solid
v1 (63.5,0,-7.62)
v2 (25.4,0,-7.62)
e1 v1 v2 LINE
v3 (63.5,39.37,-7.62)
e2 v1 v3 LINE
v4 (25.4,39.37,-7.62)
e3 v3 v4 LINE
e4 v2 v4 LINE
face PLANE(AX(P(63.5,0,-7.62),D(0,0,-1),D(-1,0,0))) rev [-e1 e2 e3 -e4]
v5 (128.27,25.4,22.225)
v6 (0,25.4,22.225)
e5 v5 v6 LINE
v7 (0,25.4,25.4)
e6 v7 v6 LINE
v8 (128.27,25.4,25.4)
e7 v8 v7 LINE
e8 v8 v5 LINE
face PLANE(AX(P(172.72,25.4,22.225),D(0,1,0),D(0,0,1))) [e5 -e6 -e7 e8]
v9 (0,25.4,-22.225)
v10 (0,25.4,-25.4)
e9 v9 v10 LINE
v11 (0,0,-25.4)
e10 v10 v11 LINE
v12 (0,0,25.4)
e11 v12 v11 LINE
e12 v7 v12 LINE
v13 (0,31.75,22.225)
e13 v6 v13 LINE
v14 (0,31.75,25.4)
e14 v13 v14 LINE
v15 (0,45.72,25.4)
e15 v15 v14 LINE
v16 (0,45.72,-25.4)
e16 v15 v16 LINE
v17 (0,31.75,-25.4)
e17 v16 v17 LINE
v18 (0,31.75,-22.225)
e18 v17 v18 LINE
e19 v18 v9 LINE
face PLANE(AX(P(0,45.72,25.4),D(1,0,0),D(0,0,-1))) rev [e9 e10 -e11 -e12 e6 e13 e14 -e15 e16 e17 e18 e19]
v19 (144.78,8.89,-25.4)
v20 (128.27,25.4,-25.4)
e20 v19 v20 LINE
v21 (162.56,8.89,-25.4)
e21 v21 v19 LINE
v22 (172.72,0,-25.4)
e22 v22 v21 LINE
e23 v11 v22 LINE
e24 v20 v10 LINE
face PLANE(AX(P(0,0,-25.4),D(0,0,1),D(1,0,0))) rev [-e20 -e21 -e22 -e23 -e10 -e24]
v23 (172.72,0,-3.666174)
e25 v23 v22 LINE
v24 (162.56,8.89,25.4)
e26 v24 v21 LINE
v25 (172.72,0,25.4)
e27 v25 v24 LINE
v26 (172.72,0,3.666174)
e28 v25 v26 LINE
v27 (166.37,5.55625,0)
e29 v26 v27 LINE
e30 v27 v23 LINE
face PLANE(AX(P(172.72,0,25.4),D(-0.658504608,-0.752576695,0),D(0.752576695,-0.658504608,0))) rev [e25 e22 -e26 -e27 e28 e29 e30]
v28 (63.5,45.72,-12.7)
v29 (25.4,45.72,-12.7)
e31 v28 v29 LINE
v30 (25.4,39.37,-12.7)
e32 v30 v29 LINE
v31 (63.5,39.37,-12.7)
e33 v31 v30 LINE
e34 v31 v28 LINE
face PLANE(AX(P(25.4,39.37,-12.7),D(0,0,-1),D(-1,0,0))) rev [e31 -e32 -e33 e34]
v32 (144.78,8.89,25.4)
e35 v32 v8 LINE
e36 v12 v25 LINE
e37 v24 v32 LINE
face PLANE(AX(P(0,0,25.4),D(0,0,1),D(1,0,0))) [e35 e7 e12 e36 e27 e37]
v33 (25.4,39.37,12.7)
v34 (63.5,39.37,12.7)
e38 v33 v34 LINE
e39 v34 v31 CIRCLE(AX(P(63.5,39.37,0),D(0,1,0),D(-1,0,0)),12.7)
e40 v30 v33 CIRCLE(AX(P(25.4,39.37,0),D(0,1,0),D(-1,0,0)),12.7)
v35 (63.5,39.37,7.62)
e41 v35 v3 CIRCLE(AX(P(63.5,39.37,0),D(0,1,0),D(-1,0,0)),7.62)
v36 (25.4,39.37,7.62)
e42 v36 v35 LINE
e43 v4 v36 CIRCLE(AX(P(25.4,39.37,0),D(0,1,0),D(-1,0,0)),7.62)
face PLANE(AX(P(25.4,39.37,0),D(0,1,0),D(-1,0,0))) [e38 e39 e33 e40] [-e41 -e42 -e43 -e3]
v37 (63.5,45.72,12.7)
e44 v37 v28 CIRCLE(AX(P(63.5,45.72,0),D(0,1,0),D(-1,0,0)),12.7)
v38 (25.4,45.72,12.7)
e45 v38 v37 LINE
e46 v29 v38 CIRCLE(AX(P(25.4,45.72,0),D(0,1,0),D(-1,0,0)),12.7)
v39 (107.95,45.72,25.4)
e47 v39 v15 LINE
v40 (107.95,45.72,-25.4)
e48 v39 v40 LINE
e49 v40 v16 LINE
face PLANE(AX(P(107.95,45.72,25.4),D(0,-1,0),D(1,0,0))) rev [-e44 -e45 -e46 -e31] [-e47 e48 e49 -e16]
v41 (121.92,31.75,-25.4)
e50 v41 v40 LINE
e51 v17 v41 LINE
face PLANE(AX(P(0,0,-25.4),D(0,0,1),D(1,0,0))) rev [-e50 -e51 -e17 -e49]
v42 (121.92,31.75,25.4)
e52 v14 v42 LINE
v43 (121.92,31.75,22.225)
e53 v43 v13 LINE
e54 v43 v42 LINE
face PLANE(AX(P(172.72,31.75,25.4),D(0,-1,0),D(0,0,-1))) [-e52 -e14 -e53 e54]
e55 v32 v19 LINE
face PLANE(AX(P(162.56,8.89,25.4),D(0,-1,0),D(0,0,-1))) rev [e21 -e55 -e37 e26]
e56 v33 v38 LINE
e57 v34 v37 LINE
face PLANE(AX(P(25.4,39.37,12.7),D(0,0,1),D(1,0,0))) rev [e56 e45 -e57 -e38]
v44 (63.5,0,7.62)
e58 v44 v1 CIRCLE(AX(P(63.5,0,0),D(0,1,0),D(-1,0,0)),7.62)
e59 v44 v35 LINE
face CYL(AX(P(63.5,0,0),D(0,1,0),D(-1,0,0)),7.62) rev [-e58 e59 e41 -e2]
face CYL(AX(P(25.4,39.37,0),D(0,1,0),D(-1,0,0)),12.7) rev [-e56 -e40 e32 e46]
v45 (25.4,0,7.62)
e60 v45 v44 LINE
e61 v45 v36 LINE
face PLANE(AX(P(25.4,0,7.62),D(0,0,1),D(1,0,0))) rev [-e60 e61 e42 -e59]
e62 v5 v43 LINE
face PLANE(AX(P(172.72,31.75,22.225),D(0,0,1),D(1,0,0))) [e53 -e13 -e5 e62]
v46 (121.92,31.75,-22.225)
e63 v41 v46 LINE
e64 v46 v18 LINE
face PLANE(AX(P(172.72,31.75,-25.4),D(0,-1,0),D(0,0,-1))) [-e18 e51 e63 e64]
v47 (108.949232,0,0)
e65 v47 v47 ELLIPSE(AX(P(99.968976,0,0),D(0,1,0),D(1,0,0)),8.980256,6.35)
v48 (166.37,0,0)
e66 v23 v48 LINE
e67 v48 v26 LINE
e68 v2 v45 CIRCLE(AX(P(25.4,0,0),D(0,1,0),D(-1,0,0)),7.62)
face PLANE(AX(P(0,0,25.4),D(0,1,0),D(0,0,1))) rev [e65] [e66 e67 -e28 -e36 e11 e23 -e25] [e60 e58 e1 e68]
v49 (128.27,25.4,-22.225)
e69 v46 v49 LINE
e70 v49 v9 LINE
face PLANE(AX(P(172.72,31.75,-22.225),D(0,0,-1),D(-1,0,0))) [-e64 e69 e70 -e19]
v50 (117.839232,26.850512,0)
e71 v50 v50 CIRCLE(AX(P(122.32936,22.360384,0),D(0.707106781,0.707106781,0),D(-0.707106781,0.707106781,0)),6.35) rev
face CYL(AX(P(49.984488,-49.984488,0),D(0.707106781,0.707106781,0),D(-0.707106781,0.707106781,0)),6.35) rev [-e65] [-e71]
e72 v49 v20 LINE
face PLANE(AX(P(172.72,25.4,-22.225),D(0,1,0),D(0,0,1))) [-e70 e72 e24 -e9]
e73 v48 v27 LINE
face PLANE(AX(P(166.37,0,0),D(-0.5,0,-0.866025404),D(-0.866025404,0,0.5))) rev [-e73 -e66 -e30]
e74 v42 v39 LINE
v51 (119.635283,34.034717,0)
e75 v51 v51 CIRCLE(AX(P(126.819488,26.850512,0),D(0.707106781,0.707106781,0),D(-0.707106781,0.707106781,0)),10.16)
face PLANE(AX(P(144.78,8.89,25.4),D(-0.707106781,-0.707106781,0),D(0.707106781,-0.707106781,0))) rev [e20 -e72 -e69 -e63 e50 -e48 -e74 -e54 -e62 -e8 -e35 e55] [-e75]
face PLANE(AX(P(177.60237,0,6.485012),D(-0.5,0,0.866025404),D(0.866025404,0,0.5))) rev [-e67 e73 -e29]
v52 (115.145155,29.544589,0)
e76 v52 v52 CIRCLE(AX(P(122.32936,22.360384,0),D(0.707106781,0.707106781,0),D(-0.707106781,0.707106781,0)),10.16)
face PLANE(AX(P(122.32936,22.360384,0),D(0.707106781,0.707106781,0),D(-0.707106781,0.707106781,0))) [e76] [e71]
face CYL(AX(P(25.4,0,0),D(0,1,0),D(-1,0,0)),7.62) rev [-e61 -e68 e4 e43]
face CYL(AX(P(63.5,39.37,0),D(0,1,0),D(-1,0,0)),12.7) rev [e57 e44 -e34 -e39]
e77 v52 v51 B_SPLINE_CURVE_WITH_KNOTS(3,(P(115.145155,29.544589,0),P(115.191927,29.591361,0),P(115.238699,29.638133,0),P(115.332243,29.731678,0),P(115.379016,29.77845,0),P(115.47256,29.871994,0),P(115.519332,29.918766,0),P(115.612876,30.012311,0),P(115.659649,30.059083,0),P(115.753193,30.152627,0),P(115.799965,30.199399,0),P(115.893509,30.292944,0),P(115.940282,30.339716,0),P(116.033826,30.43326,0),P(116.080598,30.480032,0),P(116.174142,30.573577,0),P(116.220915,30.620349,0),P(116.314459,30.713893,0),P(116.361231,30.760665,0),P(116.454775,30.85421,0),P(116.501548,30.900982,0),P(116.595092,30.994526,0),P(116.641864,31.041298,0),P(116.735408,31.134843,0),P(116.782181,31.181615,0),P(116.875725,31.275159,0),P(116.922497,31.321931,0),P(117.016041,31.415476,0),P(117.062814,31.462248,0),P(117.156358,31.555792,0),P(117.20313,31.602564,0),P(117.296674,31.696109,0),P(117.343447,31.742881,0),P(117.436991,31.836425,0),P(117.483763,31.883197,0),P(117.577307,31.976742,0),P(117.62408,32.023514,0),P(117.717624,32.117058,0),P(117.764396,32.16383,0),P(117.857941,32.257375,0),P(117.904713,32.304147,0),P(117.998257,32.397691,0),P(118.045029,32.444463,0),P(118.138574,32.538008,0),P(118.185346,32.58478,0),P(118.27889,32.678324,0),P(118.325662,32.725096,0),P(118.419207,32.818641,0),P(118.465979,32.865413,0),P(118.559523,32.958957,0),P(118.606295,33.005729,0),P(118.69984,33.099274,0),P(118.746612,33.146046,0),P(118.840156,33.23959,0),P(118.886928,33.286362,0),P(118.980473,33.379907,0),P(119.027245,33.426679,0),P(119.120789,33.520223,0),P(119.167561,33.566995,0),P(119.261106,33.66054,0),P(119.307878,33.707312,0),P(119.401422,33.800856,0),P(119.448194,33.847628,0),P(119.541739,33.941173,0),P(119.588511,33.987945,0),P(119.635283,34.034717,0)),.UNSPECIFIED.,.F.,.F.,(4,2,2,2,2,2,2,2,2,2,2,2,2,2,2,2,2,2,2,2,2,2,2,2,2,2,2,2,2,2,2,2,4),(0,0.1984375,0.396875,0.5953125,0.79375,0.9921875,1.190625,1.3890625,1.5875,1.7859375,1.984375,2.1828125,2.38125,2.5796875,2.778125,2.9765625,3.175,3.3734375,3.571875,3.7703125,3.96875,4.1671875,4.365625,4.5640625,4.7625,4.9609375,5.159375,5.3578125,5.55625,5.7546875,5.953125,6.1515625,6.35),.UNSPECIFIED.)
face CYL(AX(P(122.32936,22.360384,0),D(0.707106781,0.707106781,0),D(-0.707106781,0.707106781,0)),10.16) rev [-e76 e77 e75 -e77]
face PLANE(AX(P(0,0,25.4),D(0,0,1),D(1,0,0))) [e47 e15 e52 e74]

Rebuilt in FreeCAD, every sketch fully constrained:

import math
import FreeCAD as App
import Part
import Sketcher
from FreeCAD import Vector
Q = App.Units.Quantity

doc = App.newDocument("Part")
params = doc.addObject("Spreadsheet::Sheet", "Params")
for row, (alias, value) in enumerate([
    ("sketch1_width", "6.8 in"),
    ("sketch1_width2", "0.7 in"),
    ("sketch1_height", "1.8 in"),
    ("sketch1_width3", "4.25 in"),
    ("pad1_length", "2 in"),
    ("sketch2_diameter", "0.5 in"),
    ("sketch3_diameter", "0.8 in"),
    ("pocket2_length", "0.25 in"),
    ("sketch5_width", "0.25 in"),
    ("sketch5_height", "0.125 in"),
    ("sketch6_radius", "0.5 in"),
    ("sketch6_width", "1.5 in"),
    ("pocket5_length", "0.25 in"),
    ("sketch7_radius", "0.3 in"),
    ("sketch7_width", "1.5 in"),
], start=1):
    params.set(f"A{row}", alias)
    params.set(f"B{row}", "=" + value)
    params.setAlias(f"B{row}", alias)

body = doc.addObject("PartDesign::Body", "Body")

# Sketch on XY plane
sketch1 = doc.addObject("Sketcher::SketchObject", "Sketch")
body.addObject(sketch1)
sketch1.AttachmentSupport = (doc.XY_Plane, [""])
sketch1.MapMode = "FlatFace"
sketch1.addGeometry([
    Part.LineSegment(Vector(0, 0, 0), Vector(173, 0, 0)),  # 0
    Part.LineSegment(Vector(173, 0, 0), Vector(163, 9, 0)),  # 1
    Part.LineSegment(Vector(163, 9, 0), Vector(145, 9, 0)),  # 2
    Part.LineSegment(Vector(145, 9, 0), Vector(108, 46, 0)),  # 3
    Part.LineSegment(Vector(108, 46, 0), Vector(0, 46, 0)),  # 4
    Part.LineSegment(Vector(0, 46, 0), Vector(0, 0, 0)),  # 5
], False)
sketch1.addConstraint([
    Sketcher.Constraint("Coincident", 0, 2, 1, 1),
    Sketcher.Constraint("Coincident", 1, 2, 2, 1),
    Sketcher.Constraint("Coincident", 2, 2, 3, 1),
    Sketcher.Constraint("Coincident", 3, 2, 4, 1),
    Sketcher.Constraint("Coincident", 4, 2, 5, 1),
    Sketcher.Constraint("Coincident", 5, 2, 0, 1),
    Sketcher.Constraint("Horizontal", 0),
    Sketcher.Constraint("Horizontal", 2),
    Sketcher.Constraint("Horizontal", 4),
    Sketcher.Constraint("Vertical", 5),
    Sketcher.Constraint("Coincident", 5, 2, -1, 1),
    Sketcher.Constraint("DistanceX", 0, 1, 0, 2, Q("6.8 in")),
    Sketcher.Constraint("DistanceX", 2, 2, 2, 1, Q("0.7 in")),
    Sketcher.Constraint("DistanceY", 5, 2, 5, 1, Q("1.8 in")),
    Sketcher.Constraint("Angle", 3, Q("135 deg")),
    Sketcher.Constraint("DistanceX", 4, 2, 4, 1, Q("4.25 in")),
    Sketcher.Constraint("DistanceX", -1, 1, 1, 2, Q("6.4 in")),
])
sketch1.setExpression("Constraints[11]", "Params.sketch1_width")
sketch1.setExpression("Constraints[12]", "Params.sketch1_width2")
sketch1.setExpression("Constraints[13]", "Params.sketch1_height")
sketch1.setExpression("Constraints[15]", "Params.sketch1_width3")
pad1 = doc.addObject("PartDesign::Pad", "Pad")
body.addObject(pad1)
pad1.Profile = sketch1
pad1.setExpression("Length", "Params.pad1_length")
pad1.Midplane = True

# Sketch on an angled plane
sketch2 = doc.addObject("Sketcher::SketchObject", "Sketch001")
body.addObject(sketch2)
sketch2.Placement = App.Placement(Vector(76.835, 76.835, 0), App.Rotation(Vector(0, 0, -1), Vector(-0.707106781, 0.707106781, 0), Vector(0.707106781, 0.707106781, 0), "ZXY"))
sketch2.addGeometry(Part.Circle(Vector(0, -71, 0), Vector(0, 0, 1), 6), False)
sketch2.addConstraint([
    Sketcher.Constraint("PointOnObject", 0, 3, -2),
    Sketcher.Constraint("Diameter", 0, Q("0.5 in")),
    Sketcher.Constraint("DistanceY", 0, 3, -1, 1, 70.68874),
])
sketch2.setExpression("Constraints[1]", "Params.sketch2_diameter")
pocket1 = doc.addObject("PartDesign::Pocket", "Pocket")
body.addObject(pocket1)
pocket1.Profile = sketch2
pocket1.Type = "ThroughAll"

# Sketch on an angled plane
sketch3 = doc.addObject("Sketcher::SketchObject", "Sketch002")
body.addObject(sketch3)
sketch3.Placement = App.Placement(Vector(76.835, 76.835, 0), App.Rotation(Vector(0, 0, -1), Vector(-0.707106781, 0.707106781, 0), Vector(0.707106781, 0.707106781, 0), "ZXY"))
sketch3.addGeometry(Part.Circle(Vector(0, -71, 0), Vector(0, 0, 1), 10), False)
sketch3.addConstraint([
    Sketcher.Constraint("PointOnObject", 0, 3, -2),
    Sketcher.Constraint("Diameter", 0, Q("0.8 in")),
    Sketcher.Constraint("DistanceY", 0, 3, -1, 1, 70.68874),
])
sketch3.setExpression("Constraints[1]", "Params.sketch3_diameter")
pocket2 = doc.addObject("PartDesign::Pocket", "Pocket001")
body.addObject(pocket2)
pocket2.Profile = sketch3
pocket2.setExpression("Length", "Params.pocket2_length")

# Sketch on XZ plane
sketch4 = doc.addObject("Sketcher::SketchObject", "Sketch003")
body.addObject(sketch4)
sketch4.AttachmentSupport = (doc.XZ_Plane, [""])
sketch4.MapMode = "FlatFace"
sketch4.AttachmentOffset = App.Placement(Vector(0, 0, -0.35 * 25.4), App.Rotation())
sketch4.addGeometry([
    Part.LineSegment(Vector(178, -6, 0), Vector(166, 0, 0)),
    Part.LineSegment(Vector(166, 0, 0), Vector(178, 6, 0)),
    Part.LineSegment(Vector(178, 6, 0), Vector(178, -6, 0)),
], False)
sketch4.addConstraint([
    Sketcher.Constraint("Coincident", 0, 2, 1, 1),
    Sketcher.Constraint("Coincident", 1, 2, 2, 1),
    Sketcher.Constraint("Coincident", 2, 2, 0, 1),
    Sketcher.Constraint("Vertical", 2),
    Sketcher.Constraint("PointOnObject", 0, 2, -1),
    Sketcher.Constraint("Equal", 0, 1),
    Sketcher.Constraint("Angle", 0, Q("150 deg")),
    Sketcher.Constraint("DistanceX", -1, 1, 0, 2, Q("6.55 in")),
    Sketcher.Constraint("DistanceY", 2, 2, 2, 1, 12.970023),
])
pocket3 = doc.addObject("PartDesign::Pocket", "Pocket002")
body.addObject(pocket3)
pocket3.Profile = sketch4
pocket3.Type = "ThroughAll"
pocket3.Reversed = True

# Sketch on YZ plane
sketch5 = doc.addObject("Sketcher::SketchObject", "Sketch004")
body.addObject(sketch5)
sketch5.AttachmentSupport = (doc.YZ_Plane, [""])
sketch5.MapMode = "FlatFace"
sketch5.addGeometry([
    Part.LineSegment(Vector(31.8, 25.4, 0), Vector(25.4, 25.4, 0)),  # 0
    Part.LineSegment(Vector(25.4, 25.4, 0), Vector(25.4, 22.2, 0)),  # 1
    Part.LineSegment(Vector(25.4, 22.2, 0), Vector(31.8, 22.2, 0)),  # 2
    Part.LineSegment(Vector(31.8, 22.2, 0), Vector(31.8, 25.4, 0)),  # 3
    Part.LineSegment(Vector(31.8, -22.2, 0), Vector(25.4, -22.2, 0)),  # 4
    Part.LineSegment(Vector(25.4, -22.2, 0), Vector(25.4, -25.4, 0)),  # 5
    Part.LineSegment(Vector(25.4, -25.4, 0), Vector(31.8, -25.4, 0)),  # 6
    Part.LineSegment(Vector(31.8, -25.4, 0), Vector(31.8, -22.2, 0)),  # 7
], False)
sketch5.addConstraint([
    Sketcher.Constraint("Coincident", 0, 2, 1, 1),
    Sketcher.Constraint("Coincident", 1, 2, 2, 1),
    Sketcher.Constraint("Coincident", 2, 2, 3, 1),
    Sketcher.Constraint("Coincident", 3, 2, 0, 1),
    Sketcher.Constraint("Coincident", 4, 2, 5, 1),
    Sketcher.Constraint("Coincident", 5, 2, 6, 1),
    Sketcher.Constraint("Coincident", 6, 2, 7, 1),
    Sketcher.Constraint("Coincident", 7, 2, 4, 1),
    Sketcher.Constraint("Horizontal", 0),
    Sketcher.Constraint("Vertical", 1),
    Sketcher.Constraint("Horizontal", 2),
    Sketcher.Constraint("Vertical", 3),
    Sketcher.Constraint("Horizontal", 4),
    Sketcher.Constraint("Vertical", 5),
    Sketcher.Constraint("Horizontal", 6),
    Sketcher.Constraint("Vertical", 7),
    Sketcher.Constraint("Symmetric", 1, 2, 4, 2, -1),
    Sketcher.Constraint("Symmetric", 3, 2, 6, 2, -1),
    Sketcher.Constraint("DistanceX", -1, 1, 0, 2, Q("1 in")),
    Sketcher.Constraint("DistanceY", -1, 1, 0, 2, Q("1 in")),
    Sketcher.Constraint("DistanceX", 0, 2, 0, 1, Q("0.25 in")),
    Sketcher.Constraint("DistanceY", 1, 2, 1, 1, Q("0.125 in")),
])
sketch5.setExpression("Constraints[20]", "Params.sketch5_width")
sketch5.setExpression("Constraints[21]", "Params.sketch5_height")
pocket4 = doc.addObject("PartDesign::Pocket", "Pocket003")
body.addObject(pocket4)
pocket4.Profile = sketch5
pocket4.Type = "ThroughAll"
pocket4.Reversed = True

# Sketch on XZ plane
sketch6 = doc.addObject("Sketcher::SketchObject", "Sketch005")
body.addObject(sketch6)
sketch6.AttachmentSupport = (doc.XZ_Plane, [""])
sketch6.MapMode = "FlatFace"
sketch6.AttachmentOffset = App.Placement(Vector(0, 0, -1.8 * 25.4), App.Rotation())
sketch6.addGeometry([
    Part.LineSegment(Vector(64, -13, 0), Vector(25, -13, 0)),
    Part.ArcOfCircle(Part.Circle(Vector(25, 0, 0), Vector(0, 0, 1), 13), math.radians(90), math.radians(270)),
    Part.LineSegment(Vector(25, 13, 0), Vector(64, 13, 0)),
    Part.ArcOfCircle(Part.Circle(Vector(64, 0, 0), Vector(0, 0, 1), 13), math.radians(-90), math.radians(90)),
], False)
sketch6.addConstraint([
    Sketcher.Constraint("Tangent", 0, 2, 1, 2),
    Sketcher.Constraint("Tangent", 1, 1, 2, 1),
    Sketcher.Constraint("Tangent", 2, 2, 3, 2),
    Sketcher.Constraint("Tangent", 3, 1, 0, 1),
    Sketcher.Constraint("Horizontal", 0),
    Sketcher.Constraint("Horizontal", 2),
    Sketcher.Constraint("PointOnObject", 1, 3, -1),
    Sketcher.Constraint("Radius", 1, Q("0.5 in")),
    Sketcher.Constraint("DistanceX", 0, 2, 0, 1, Q("1.5 in")),
    Sketcher.Constraint("DistanceX", -1, 1, 1, 3, Q("1 in")),
])
sketch6.setExpression("Constraints[7]", "Params.sketch6_radius")
sketch6.setExpression("Constraints[8]", "Params.sketch6_width")
pocket5 = doc.addObject("PartDesign::Pocket", "Pocket004")
body.addObject(pocket5)
pocket5.Profile = sketch6
pocket5.setExpression("Length", "Params.pocket5_length")
pocket5.Reversed = True

# Sketch on XZ plane
sketch7 = doc.addObject("Sketcher::SketchObject", "Sketch006")
body.addObject(sketch7)
sketch7.AttachmentSupport = (doc.XZ_Plane, [""])
sketch7.MapMode = "FlatFace"
sketch7.AttachmentOffset = App.Placement(Vector(0, 0, -1.55 * 25.4), App.Rotation())
sketch7.addGeometry([
    Part.LineSegment(Vector(25, 8, 0), Vector(64, 8, 0)),
    Part.ArcOfCircle(Part.Circle(Vector(64, 0, 0), Vector(0, 0, 1), 8), math.radians(-90), math.radians(90)),
    Part.LineSegment(Vector(64, -8, 0), Vector(25, -8, 0)),
    Part.ArcOfCircle(Part.Circle(Vector(25, 0, 0), Vector(0, 0, 1), 8), math.radians(90), math.radians(270)),
], False)
sketch7.addConstraint([
    Sketcher.Constraint("Tangent", 0, 2, 1, 2),
    Sketcher.Constraint("Tangent", 1, 1, 2, 1),
    Sketcher.Constraint("Tangent", 2, 2, 3, 2),
    Sketcher.Constraint("Tangent", 3, 1, 0, 1),
    Sketcher.Constraint("Horizontal", 0),
    Sketcher.Constraint("Horizontal", 2),
    Sketcher.Constraint("PointOnObject", 1, 3, -1),
    Sketcher.Constraint("Radius", 1, Q("0.3 in")),
    Sketcher.Constraint("DistanceX", 0, 1, 0, 2, Q("1.5 in")),
    Sketcher.Constraint("DistanceX", -1, 1, 3, 3, Q("1 in")),
])
sketch7.setExpression("Constraints[7]", "Params.sketch7_radius")
sketch7.setExpression("Constraints[8]", "Params.sketch7_width")
pocket6 = doc.addObject("PartDesign::Pocket", "Pocket005")
body.addObject(pocket6)
pocket6.Profile = sketch7
pocket6.Type = "ThroughAll"
pocket6.Reversed = True

doc.recompute()
